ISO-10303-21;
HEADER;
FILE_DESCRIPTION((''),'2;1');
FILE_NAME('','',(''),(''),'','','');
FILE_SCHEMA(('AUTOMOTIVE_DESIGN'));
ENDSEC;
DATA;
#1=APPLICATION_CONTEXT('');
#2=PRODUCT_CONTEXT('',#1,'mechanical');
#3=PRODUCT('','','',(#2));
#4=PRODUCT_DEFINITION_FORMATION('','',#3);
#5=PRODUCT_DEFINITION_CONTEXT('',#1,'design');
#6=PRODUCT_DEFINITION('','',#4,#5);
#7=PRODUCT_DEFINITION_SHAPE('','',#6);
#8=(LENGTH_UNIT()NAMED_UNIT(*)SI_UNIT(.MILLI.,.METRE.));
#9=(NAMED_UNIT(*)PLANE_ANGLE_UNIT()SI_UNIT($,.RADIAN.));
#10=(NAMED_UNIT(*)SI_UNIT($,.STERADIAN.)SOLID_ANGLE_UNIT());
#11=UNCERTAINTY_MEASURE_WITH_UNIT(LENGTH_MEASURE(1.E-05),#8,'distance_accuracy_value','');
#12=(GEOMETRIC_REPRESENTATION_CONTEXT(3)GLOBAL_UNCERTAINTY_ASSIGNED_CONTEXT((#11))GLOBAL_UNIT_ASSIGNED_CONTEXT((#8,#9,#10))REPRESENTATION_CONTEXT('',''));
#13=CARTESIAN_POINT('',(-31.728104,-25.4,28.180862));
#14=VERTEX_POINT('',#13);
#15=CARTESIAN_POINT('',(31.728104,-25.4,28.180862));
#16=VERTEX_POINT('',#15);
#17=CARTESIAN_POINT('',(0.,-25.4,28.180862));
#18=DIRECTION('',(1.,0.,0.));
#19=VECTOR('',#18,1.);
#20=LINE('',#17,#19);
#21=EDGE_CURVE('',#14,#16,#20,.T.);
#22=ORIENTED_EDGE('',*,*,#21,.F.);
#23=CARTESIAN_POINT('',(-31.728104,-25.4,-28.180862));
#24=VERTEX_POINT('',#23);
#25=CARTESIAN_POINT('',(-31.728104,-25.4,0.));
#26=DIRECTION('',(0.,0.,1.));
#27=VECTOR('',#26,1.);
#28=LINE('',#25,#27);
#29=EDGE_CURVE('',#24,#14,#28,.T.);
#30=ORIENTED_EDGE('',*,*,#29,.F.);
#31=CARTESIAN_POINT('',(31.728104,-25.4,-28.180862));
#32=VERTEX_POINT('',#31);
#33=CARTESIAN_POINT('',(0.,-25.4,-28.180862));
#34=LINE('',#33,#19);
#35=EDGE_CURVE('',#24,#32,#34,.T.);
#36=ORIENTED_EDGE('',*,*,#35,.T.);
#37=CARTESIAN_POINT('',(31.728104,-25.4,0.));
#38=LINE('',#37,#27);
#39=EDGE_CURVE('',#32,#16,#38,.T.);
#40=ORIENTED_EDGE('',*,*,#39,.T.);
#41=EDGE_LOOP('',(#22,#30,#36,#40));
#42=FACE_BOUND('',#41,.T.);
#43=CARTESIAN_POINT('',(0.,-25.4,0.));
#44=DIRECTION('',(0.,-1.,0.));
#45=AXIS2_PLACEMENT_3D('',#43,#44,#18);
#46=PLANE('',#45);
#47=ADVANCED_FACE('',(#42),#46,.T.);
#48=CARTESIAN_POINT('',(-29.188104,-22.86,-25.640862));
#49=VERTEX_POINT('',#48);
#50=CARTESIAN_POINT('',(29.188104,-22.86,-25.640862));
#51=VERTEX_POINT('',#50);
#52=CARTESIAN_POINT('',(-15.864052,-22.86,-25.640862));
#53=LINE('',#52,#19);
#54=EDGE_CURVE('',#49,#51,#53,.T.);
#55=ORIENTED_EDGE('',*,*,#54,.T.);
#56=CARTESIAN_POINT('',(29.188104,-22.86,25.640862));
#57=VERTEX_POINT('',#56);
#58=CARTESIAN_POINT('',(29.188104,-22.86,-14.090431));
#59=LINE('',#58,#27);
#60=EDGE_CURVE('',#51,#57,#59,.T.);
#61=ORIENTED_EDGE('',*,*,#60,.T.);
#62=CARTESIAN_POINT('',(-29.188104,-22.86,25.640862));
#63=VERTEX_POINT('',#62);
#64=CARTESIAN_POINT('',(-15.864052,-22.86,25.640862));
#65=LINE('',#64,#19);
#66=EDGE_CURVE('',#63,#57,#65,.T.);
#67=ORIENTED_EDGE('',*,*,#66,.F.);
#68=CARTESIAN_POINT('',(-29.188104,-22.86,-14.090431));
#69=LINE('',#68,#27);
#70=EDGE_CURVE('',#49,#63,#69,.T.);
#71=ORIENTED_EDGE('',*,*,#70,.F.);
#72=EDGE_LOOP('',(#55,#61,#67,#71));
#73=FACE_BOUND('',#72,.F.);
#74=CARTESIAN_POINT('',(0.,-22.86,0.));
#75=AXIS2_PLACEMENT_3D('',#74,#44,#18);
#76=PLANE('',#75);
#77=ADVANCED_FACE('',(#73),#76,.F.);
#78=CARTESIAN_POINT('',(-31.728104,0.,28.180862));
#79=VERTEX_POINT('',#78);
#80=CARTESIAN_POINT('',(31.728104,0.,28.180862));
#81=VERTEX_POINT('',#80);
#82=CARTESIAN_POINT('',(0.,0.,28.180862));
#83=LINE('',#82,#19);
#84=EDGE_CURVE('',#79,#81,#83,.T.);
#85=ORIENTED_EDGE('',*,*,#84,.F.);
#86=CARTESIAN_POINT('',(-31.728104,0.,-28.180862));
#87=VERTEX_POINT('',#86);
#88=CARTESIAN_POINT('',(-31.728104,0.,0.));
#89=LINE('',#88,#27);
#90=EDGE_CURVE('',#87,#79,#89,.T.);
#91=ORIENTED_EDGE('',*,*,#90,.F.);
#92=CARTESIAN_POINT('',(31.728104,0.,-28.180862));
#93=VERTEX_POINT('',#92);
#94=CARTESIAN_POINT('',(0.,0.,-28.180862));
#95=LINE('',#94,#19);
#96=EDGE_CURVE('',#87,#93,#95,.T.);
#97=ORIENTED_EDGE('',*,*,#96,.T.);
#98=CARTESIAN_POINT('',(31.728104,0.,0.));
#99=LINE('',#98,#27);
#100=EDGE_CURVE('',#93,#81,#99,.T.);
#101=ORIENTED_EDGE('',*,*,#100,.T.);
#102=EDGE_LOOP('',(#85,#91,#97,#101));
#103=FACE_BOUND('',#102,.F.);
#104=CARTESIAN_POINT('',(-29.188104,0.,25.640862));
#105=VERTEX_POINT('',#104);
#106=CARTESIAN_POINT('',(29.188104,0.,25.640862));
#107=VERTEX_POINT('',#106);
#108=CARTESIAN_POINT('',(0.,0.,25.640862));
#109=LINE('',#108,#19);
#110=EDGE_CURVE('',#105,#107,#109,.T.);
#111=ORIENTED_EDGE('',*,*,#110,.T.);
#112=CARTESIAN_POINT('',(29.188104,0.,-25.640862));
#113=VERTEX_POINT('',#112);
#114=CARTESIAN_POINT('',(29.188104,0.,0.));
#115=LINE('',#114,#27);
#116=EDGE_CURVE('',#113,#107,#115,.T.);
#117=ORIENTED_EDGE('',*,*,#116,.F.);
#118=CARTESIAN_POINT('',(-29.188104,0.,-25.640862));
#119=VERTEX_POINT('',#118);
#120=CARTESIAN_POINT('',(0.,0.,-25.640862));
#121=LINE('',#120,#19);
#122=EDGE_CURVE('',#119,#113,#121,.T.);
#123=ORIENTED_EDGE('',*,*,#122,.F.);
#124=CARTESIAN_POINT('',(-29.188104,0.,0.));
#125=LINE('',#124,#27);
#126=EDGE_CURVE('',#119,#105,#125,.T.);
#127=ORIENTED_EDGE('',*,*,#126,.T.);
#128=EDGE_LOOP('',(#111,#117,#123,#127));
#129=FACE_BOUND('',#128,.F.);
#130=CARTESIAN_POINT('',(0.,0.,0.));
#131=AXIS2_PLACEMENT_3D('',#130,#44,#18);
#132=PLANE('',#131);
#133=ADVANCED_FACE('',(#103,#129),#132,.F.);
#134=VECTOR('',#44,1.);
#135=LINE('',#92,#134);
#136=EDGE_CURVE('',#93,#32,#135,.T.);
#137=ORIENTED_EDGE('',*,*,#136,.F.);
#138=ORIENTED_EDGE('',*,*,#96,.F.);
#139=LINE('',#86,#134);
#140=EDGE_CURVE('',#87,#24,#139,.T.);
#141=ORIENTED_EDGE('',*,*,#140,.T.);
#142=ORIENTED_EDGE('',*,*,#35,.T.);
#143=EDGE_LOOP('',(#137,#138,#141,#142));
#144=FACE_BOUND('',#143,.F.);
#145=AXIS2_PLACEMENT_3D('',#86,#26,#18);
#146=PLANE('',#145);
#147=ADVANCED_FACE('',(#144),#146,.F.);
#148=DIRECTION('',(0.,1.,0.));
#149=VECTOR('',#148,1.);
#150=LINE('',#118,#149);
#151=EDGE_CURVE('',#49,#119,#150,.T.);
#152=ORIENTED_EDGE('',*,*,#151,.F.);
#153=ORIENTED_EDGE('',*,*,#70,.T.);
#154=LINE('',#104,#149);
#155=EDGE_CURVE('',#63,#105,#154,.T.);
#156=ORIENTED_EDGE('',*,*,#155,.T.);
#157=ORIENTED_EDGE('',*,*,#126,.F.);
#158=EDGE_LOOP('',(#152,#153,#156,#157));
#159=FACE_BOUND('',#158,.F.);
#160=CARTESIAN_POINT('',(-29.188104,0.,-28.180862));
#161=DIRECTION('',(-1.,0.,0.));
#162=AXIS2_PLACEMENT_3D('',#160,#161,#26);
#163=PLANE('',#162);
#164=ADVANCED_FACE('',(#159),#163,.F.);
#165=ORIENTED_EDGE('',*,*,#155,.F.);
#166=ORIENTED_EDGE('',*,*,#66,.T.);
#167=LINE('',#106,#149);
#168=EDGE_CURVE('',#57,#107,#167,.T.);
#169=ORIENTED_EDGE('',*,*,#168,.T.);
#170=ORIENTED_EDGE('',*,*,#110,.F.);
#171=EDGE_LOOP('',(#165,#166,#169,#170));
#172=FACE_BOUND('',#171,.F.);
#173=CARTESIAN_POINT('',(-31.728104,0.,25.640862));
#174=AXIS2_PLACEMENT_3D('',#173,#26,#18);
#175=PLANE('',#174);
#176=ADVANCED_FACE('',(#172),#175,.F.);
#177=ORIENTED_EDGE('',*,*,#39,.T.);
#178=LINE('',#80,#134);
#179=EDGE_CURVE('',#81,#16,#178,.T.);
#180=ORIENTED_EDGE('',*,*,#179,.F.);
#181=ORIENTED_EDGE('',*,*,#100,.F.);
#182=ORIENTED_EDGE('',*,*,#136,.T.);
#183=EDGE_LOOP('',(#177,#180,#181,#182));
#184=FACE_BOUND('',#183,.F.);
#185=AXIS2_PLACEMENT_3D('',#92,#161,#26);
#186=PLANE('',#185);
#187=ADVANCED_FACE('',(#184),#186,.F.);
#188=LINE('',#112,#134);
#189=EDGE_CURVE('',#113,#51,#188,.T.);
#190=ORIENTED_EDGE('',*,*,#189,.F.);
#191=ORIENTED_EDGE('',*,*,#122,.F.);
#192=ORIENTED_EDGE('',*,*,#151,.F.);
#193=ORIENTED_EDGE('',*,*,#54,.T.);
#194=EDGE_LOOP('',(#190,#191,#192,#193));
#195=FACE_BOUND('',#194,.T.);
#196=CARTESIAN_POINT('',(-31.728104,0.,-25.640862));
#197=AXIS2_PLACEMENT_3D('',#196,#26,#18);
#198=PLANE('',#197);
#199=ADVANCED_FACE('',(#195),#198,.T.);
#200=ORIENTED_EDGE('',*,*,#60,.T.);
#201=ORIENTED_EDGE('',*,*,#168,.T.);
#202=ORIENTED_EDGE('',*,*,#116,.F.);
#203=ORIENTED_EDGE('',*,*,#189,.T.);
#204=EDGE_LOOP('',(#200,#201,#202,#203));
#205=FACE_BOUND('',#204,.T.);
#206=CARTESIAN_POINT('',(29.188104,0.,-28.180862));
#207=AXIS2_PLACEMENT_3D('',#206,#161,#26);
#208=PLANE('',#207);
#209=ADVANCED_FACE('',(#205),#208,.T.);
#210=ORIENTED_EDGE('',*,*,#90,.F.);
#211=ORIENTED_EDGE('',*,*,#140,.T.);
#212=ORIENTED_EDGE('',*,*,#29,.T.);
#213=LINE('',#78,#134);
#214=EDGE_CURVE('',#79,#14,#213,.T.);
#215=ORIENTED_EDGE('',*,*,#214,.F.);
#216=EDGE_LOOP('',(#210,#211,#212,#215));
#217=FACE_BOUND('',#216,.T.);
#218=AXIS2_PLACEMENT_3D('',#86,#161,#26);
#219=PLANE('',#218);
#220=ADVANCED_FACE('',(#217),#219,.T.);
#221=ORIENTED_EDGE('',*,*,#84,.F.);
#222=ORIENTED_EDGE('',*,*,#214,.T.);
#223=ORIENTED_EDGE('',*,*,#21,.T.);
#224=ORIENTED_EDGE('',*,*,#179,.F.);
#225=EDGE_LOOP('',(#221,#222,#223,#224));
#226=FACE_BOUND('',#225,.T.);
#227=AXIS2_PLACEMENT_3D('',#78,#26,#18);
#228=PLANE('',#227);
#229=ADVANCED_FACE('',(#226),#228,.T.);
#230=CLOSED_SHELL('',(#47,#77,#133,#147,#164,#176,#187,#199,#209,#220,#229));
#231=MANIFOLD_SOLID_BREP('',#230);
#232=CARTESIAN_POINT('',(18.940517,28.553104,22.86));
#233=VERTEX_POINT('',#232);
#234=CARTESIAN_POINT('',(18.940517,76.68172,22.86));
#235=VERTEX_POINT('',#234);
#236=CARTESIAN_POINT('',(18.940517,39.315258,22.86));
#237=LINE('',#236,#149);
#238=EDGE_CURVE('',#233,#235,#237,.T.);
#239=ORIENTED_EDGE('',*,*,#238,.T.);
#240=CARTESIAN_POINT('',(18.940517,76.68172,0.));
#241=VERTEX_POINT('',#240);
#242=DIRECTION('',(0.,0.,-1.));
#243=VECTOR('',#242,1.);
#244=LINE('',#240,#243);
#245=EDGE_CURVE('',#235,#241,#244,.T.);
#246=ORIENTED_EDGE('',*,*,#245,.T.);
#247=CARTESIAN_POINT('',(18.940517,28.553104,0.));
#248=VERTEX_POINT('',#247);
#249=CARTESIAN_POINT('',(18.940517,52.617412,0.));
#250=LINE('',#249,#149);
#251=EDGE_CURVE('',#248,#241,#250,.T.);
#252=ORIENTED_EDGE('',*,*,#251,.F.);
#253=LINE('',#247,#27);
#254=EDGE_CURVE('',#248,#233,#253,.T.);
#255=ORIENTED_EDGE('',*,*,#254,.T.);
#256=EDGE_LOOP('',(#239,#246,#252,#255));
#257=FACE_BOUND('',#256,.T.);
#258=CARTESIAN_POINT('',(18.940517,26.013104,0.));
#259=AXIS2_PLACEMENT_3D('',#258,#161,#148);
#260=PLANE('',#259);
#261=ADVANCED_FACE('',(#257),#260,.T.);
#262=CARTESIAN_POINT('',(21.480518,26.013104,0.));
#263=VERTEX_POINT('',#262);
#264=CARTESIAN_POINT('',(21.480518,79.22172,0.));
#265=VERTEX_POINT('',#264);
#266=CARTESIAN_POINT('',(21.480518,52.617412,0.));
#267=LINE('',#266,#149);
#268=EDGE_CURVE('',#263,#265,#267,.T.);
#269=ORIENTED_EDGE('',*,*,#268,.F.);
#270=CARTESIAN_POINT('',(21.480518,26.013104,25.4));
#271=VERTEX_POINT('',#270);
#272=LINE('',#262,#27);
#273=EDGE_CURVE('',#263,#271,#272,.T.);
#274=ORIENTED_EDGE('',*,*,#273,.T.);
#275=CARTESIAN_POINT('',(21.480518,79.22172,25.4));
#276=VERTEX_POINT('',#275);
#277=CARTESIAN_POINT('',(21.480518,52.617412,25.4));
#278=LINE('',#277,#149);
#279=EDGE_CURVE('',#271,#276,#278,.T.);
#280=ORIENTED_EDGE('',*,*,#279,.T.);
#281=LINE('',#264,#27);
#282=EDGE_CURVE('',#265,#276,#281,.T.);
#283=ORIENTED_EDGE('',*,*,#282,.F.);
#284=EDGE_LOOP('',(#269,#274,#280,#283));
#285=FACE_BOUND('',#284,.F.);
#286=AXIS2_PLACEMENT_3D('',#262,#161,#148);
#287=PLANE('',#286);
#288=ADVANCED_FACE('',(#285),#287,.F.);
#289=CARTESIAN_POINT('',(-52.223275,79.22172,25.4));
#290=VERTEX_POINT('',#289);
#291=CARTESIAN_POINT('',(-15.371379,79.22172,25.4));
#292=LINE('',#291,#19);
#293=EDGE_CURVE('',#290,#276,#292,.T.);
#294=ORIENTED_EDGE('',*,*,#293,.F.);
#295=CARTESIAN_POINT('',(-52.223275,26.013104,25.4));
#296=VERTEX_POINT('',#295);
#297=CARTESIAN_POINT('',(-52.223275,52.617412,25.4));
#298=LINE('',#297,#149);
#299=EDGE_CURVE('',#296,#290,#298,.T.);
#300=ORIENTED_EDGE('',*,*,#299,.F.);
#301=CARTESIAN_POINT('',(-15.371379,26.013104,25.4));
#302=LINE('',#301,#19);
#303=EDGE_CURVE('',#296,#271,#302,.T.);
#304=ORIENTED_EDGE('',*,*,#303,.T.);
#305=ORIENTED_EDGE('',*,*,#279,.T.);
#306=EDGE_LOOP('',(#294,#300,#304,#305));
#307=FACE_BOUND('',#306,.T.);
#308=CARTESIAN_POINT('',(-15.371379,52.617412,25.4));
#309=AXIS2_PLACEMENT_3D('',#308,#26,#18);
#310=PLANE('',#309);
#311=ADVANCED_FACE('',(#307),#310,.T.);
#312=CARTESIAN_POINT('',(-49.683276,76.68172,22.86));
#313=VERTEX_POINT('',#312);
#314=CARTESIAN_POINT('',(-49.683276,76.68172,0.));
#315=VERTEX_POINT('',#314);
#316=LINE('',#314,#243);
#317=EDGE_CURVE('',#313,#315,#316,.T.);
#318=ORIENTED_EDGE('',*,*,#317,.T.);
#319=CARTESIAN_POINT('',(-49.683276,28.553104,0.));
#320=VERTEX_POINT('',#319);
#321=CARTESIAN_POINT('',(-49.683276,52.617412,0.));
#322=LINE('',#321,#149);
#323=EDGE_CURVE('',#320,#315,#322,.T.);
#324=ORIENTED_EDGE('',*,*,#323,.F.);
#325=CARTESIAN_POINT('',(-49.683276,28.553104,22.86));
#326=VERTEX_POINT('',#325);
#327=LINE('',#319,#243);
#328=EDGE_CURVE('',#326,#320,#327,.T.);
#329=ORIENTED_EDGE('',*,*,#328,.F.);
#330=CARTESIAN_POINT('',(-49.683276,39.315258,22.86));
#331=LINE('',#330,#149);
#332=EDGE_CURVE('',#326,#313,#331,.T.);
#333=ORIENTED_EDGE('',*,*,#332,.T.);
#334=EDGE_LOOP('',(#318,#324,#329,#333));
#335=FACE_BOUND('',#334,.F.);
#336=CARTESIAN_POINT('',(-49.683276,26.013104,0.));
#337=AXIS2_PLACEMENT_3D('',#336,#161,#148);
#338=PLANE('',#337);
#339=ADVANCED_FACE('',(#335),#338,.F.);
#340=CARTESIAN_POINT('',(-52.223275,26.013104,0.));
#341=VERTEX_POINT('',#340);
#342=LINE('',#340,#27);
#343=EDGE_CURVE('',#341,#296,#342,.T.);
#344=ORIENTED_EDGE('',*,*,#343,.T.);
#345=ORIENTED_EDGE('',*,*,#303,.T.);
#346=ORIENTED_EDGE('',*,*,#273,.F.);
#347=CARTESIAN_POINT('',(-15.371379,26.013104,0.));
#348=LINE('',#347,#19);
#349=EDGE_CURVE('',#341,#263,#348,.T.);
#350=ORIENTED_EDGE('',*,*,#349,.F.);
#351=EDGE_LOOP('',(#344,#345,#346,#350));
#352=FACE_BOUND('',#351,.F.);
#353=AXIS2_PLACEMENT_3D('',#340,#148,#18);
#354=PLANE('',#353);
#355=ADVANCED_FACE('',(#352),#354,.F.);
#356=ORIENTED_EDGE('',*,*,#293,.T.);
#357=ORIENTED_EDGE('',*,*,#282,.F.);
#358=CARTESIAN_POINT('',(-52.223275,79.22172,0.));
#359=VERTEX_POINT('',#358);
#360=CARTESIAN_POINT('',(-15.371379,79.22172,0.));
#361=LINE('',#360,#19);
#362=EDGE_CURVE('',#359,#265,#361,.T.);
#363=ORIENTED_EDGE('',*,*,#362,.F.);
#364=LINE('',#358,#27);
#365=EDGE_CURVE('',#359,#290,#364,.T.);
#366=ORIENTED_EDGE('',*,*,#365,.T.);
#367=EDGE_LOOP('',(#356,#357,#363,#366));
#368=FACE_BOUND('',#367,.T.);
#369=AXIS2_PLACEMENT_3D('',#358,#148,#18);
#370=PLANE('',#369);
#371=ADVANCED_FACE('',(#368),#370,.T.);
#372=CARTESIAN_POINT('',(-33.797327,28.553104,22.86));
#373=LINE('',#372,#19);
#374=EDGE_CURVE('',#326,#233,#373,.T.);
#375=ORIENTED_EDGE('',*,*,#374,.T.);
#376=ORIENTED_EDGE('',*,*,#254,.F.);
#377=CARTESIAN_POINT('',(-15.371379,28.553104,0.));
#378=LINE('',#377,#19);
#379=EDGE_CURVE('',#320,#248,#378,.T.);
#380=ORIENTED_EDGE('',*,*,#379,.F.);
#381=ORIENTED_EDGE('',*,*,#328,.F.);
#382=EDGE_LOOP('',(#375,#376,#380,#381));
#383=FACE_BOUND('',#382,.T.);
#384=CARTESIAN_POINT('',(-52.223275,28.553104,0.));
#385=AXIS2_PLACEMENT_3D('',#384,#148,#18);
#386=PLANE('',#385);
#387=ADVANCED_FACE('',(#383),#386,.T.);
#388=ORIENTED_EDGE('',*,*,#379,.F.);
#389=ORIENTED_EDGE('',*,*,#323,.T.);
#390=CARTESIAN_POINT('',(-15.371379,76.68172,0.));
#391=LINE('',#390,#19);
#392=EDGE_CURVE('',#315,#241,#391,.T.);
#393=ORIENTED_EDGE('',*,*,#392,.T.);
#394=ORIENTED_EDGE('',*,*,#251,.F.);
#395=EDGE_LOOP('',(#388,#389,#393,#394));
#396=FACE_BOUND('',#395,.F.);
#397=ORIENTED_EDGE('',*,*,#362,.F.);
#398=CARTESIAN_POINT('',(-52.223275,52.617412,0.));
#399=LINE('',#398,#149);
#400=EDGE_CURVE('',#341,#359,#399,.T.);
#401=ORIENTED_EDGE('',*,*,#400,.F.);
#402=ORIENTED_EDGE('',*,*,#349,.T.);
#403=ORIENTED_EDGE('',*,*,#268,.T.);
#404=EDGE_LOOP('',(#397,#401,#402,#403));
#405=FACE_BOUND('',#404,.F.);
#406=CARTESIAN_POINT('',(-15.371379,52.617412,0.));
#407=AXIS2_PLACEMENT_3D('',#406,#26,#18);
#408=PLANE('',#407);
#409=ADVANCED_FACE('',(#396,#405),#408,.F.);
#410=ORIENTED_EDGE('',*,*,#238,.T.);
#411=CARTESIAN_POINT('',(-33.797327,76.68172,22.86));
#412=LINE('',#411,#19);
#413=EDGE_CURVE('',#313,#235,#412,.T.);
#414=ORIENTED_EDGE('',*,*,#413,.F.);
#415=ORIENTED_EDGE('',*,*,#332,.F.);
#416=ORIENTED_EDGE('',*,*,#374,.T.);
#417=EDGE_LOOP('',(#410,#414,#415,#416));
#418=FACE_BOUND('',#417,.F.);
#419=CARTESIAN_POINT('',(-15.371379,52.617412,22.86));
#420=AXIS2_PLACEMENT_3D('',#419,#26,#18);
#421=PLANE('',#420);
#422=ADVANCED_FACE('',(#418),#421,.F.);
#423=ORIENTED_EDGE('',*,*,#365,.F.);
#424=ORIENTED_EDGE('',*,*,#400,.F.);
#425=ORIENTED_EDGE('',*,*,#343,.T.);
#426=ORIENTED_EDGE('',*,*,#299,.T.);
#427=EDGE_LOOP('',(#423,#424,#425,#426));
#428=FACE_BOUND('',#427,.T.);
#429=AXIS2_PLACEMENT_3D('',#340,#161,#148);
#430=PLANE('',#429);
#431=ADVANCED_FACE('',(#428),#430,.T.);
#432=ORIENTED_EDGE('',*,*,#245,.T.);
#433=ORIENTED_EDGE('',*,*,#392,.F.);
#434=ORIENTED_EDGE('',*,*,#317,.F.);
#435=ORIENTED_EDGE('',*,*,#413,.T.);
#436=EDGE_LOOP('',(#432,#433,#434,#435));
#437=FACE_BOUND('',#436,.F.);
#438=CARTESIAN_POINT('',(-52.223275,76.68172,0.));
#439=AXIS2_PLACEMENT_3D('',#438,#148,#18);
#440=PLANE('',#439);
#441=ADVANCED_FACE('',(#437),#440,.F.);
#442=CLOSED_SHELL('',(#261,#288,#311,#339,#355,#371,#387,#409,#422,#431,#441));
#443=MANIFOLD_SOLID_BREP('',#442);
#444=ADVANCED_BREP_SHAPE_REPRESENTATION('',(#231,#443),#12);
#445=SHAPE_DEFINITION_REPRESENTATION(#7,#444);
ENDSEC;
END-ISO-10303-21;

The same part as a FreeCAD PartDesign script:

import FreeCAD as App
import Part
import Sketcher

V = App.Vector
Q = App.Units.Quantity


def faces_at(feature, points):
    """Names of the faces that lie closest to the given points."""
    faces = feature.Shape.Faces
    near = lambda p: min(range(len(faces)), key=lambda i: faces[i].distToShape(Part.Vertex(*p))[0])
    return sorted({f"Face{near(p) + 1}" for p in points})

doc = App.newDocument("Part")
params = doc.addObject("Spreadsheet::Sheet", "Params")
for row, (alias, value) in enumerate([
    ("pad1_length", "1 in"),
    ("thickness_wall", "0.1 in"),
    ("pad2_length", "1 in"),
    ("thickness2_wall", "0.1 in"),
], start=1):
    params.set(f"A{row}", alias)
    params.set(f"B{row}", "=" + value)
    params.setAlias(f"B{row}", alias)

body = doc.addObject("PartDesign::Body", "Body")

# Sketch on XZ plane
sketch1 = body.newObject("Sketcher::SketchObject", "Sketch")
sketch1.AttachmentSupport = (doc.getObject("XZ_Plane"), [""])
sketch1.MapMode = "FlatFace"
sketch1.addGeometry([
    Part.LineSegment(V(-32, 28, 0), V(-32, -28, 0)),
    Part.LineSegment(V(-32, -28, 0), V(32, -28, 0)),
    Part.LineSegment(V(32, -28, 0), V(32, 28, 0)),
    Part.LineSegment(V(32, 28, 0), V(-32, 28, 0)),
], False)
sketch1.addConstraint([
    Sketcher.Constraint("Coincident", 0, 2, 1, 1),
    Sketcher.Constraint("Coincident", 1, 2, 2, 1),
    Sketcher.Constraint("Coincident", 2, 2, 3, 1),
    Sketcher.Constraint("Coincident", 3, 2, 0, 1),
    Sketcher.Constraint("Vertical", 0),
    Sketcher.Constraint("Horizontal", 1),
    Sketcher.Constraint("Vertical", 2),
    Sketcher.Constraint("Horizontal", 3),
    Sketcher.Constraint("Symmetric", 0, 2, 2, 2, -1, 1),
    Sketcher.Constraint("DistanceX", 1, 1, 1, 2, Q("63.456208 mm")),
    Sketcher.Constraint("DistanceY", 0, 2, 0, 1, Q("56.361724 mm")),
])
pad1 = body.newObject("PartDesign::Pad", "Pad")
pad1.Profile = sketch1
pad1.setExpression("Length", "Params.pad1_length")
doc.recompute()

thickness = body.newObject("PartDesign::Thickness", "Thickness")
thickness.Base = (pad1, faces_at(pad1, [(0, 0, 0)]))
thickness.setExpression("Value", "Params.thickness_wall")
thickness.Reversed = True
thickness.Join = "Arc"
body2 = doc.addObject("PartDesign::Body", "Body001")

# Sketch on XY plane
sketch2 = body2.newObject("Sketcher::SketchObject", "Sketch001")
sketch2.AttachmentSupport = (doc.getObject("XY_Plane001"), [""])
sketch2.MapMode = "FlatFace"
sketch2.addGeometry([
    Part.LineSegment(V(-52, 79, 0), V(-52, 26, 0)),
    Part.LineSegment(V(-52, 26, 0), V(21, 26, 0)),
    Part.LineSegment(V(21, 26, 0), V(21, 79, 0)),
    Part.LineSegment(V(21, 79, 0), V(-52, 79, 0)),
], False)
sketch2.addConstraint([
    Sketcher.Constraint("Coincident", 0, 2, 1, 1),
    Sketcher.Constraint("Coincident", 1, 2, 2, 1),
    Sketcher.Constraint("Coincident", 2, 2, 3, 1),
    Sketcher.Constraint("Coincident", 3, 2, 0, 1),
    Sketcher.Constraint("Vertical", 0),
    Sketcher.Constraint("Horizontal", 1),
    Sketcher.Constraint("Vertical", 2),
    Sketcher.Constraint("Horizontal", 3),
    Sketcher.Constraint("DistanceX", 1, 1, 1, 2, Q("73.703793 mm")),
    Sketcher.Constraint("DistanceY", 0, 2, 0, 1, Q("53.208616 mm")),
    Sketcher.Constraint("DistanceY", -1, 1, 2, 2, Q("79.22172 mm")),
    Sketcher.Constraint("DistanceX", 0, 2, -1, 1, Q("52.223275 mm")),
])
pad2 = body2.newObject("PartDesign::Pad", "Pad001")
pad2.Profile = sketch2
pad2.setExpression("Length", "Params.pad2_length")
doc.recompute()

thickness2 = body2.newObject("PartDesign::Thickness", "Thickness001")
thickness2.Base = (pad2, faces_at(pad2, [(-15.371, 52.617, 0)]))
thickness2.setExpression("Value", "Params.thickness2_wall")
thickness2.Reversed = True
thickness2.Join = "Arc"

doc.recompute()
